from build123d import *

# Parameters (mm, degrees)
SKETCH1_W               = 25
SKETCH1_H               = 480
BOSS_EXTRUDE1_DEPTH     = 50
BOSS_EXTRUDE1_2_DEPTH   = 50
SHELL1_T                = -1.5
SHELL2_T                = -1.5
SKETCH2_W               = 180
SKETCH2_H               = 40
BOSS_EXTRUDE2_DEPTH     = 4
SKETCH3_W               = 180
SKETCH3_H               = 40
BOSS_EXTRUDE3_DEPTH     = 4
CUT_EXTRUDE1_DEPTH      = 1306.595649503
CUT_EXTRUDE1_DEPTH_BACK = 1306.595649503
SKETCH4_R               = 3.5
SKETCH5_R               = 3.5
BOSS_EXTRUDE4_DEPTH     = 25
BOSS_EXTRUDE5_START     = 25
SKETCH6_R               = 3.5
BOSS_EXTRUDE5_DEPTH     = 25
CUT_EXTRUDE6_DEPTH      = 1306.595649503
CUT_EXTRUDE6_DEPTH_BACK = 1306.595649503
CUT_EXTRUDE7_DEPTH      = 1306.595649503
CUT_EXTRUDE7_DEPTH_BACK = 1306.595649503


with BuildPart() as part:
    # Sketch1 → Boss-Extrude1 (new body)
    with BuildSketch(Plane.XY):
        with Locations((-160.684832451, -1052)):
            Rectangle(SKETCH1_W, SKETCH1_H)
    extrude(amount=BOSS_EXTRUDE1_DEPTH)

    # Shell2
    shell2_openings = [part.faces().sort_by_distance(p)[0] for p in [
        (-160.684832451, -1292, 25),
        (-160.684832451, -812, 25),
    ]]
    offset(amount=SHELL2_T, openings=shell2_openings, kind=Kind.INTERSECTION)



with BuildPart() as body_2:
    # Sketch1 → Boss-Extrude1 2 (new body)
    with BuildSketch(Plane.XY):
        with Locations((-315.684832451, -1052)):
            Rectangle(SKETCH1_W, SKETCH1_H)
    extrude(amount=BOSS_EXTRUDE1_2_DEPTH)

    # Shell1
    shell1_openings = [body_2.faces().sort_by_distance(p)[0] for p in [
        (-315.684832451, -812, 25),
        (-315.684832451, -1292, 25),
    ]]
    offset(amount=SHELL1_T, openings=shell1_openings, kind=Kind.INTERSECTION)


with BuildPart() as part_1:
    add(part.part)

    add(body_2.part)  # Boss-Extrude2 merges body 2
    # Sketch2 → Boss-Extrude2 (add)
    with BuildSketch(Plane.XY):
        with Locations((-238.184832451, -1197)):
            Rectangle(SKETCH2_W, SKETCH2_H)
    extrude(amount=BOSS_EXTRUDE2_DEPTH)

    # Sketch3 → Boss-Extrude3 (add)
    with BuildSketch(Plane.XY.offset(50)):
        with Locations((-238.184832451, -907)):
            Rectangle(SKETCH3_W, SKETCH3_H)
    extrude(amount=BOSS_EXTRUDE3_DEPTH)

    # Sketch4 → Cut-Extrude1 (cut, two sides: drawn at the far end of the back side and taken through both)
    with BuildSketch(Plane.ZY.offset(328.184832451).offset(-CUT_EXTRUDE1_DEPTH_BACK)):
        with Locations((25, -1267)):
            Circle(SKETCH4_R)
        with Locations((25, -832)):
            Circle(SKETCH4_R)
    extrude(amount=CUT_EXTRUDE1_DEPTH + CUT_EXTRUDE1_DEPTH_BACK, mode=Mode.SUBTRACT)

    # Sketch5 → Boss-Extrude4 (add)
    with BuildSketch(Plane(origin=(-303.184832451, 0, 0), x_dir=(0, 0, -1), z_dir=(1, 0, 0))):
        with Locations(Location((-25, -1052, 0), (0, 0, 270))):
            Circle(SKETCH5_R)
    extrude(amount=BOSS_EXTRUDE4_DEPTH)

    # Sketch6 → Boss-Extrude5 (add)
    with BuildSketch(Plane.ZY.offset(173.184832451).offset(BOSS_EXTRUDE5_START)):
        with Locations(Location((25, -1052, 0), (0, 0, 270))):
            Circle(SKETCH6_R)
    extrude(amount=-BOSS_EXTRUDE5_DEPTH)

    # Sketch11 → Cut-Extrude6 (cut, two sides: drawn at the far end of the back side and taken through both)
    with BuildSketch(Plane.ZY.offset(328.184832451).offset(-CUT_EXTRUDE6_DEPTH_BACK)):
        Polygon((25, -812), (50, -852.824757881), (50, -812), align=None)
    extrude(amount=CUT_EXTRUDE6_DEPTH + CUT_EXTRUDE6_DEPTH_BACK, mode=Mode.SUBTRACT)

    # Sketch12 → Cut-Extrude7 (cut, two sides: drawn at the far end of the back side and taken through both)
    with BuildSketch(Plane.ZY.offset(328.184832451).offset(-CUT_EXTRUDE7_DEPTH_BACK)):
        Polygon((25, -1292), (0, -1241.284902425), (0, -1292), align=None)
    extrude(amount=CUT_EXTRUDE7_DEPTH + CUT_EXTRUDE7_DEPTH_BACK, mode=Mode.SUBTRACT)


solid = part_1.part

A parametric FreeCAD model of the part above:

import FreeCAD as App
import Part
import Sketcher


def faces_at(feature, points):
    """Names of the faces that lie closest to the given points."""
    faces = feature.Shape.Faces
    near = lambda p: min(range(len(faces)), key=lambda i: faces[i].distToShape(Part.Vertex(*p))[0])
    return sorted({f"Face{near(p) + 1}" for p in points})

doc = App.newDocument("Part")
body = doc.addObject("PartDesign::Body", "Body")

# Sketch on XY plane
sketch1 = body.newObject("Sketcher::SketchObject", "Sketch")
sketch1.AttachmentSupport = (doc.getObject("XY_Plane"), [""])
sketch1.MapMode = "FlatFace"
sketch1.addGeometry([
    Part.LineSegment(App.Vector(-173.184832, -812, 0), App.Vector(-173.184832, -1292, 0)),
    Part.LineSegment(App.Vector(-173.184832, -1292, 0), App.Vector(-148.184832, -1292, 0)),
    Part.LineSegment(App.Vector(-148.184832, -1292, 0), App.Vector(-148.184832, -812, 0)),
    Part.LineSegment(App.Vector(-148.184832, -812, 0), App.Vector(-173.184832, -812, 0)),
], False)
sketch1.addConstraint([
    Sketcher.Constraint("Coincident", 0, 2, 1, 1),
    Sketcher.Constraint("Coincident", 1, 2, 2, 1),
    Sketcher.Constraint("Coincident", 2, 2, 3, 1),
    Sketcher.Constraint("Coincident", 3, 2, 0, 1),
    Sketcher.Constraint("Vertical", 0),
    Sketcher.Constraint("Horizontal", 1),
    Sketcher.Constraint("Vertical", 2),
    Sketcher.Constraint("Horizontal", 3),
    Sketcher.Constraint("DistanceX", 1, 1, 1, 2, 25.0),
    Sketcher.Constraint("DistanceY", 0, 2, 0, 1, 480.0),
    Sketcher.Constraint("DistanceY", 0, 2, -1, 1, 1292.0),
    Sketcher.Constraint("DistanceX", 0, 2, -1, 1, 173.184832),
])
pad1 = body.newObject("PartDesign::Pad", "Pad")
pad1.Profile = sketch1
pad1.Length = 50
doc.recompute()

thickness = body.newObject("PartDesign::Thickness", "Thickness")
thickness.Base = (pad1, faces_at(pad1, [(-160.685, -1292, 25), (-160.685, -812, 25)]))
thickness.Value = 1.5
thickness.Reversed = True
thickness.Join = "Intersection"
body2 = doc.addObject("PartDesign::Body", "Body001")

# Sketch on XY plane
sketch2 = body2.newObject("Sketcher::SketchObject", "Sketch001")
sketch2.AttachmentSupport = (doc.getObject("XY_Plane001"), [""])
sketch2.MapMode = "FlatFace"
sketch2.addGeometry([
    Part.LineSegment(App.Vector(-328.184832, -812, 0), App.Vector(-328.184832, -1292, 0)),
    Part.LineSegment(App.Vector(-328.184832, -1292, 0), App.Vector(-303.184832, -1292, 0)),
    Part.LineSegment(App.Vector(-303.184832, -1292, 0), App.Vector(-303.184832, -812, 0)),
    Part.LineSegment(App.Vector(-303.184832, -812, 0), App.Vector(-328.184832, -812, 0)),
], False)
sketch2.addConstraint([
    Sketcher.Constraint("Coincident", 0, 2, 1, 1),
    Sketcher.Constraint("Coincident", 1, 2, 2, 1),
    Sketcher.Constraint("Coincident", 2, 2, 3, 1),
    Sketcher.Constraint("Coincident", 3, 2, 0, 1),
    Sketcher.Constraint("Vertical", 0),
    Sketcher.Constraint("Horizontal", 1),
    Sketcher.Constraint("Vertical", 2),
    Sketcher.Constraint("Horizontal", 3),
    Sketcher.Constraint("DistanceX", 1, 1, 1, 2, 25.0),
    Sketcher.Constraint("DistanceY", 0, 2, 0, 1, 480.0),
    Sketcher.Constraint("DistanceY", 0, 2, -1, 1, 1292.0),
    Sketcher.Constraint("DistanceX", 0, 2, -1, 1, 328.184832),
])
pad2 = body2.newObject("PartDesign::Pad", "Pad001")
pad2.Profile = sketch2
pad2.Length = 50
doc.recompute()

thickness2 = body2.newObject("PartDesign::Thickness", "Thickness001")
thickness2.Base = (pad2, faces_at(pad2, [(-315.685, -812, 25), (-315.685, -1292, 25)]))
thickness2.Value = 1.5
thickness2.Reversed = True
thickness2.Join = "Intersection"
body.AllowCompound = True
doc.recompute()

boolean = body.newObject("PartDesign::Boolean", "Boolean")
boolean.Type = "Fuse"
boolean.addObjects([body2])

# Sketch on XY plane
sketch3 = body.newObject("Sketcher::SketchObject", "Sketch002")
sketch3.AttachmentSupport = (doc.getObject("XY_Plane"), [""])
sketch3.MapMode = "FlatFace"
sketch3.addGeometry([
    Part.LineSegment(App.Vector(-328.184832, -1177, 0), App.Vector(-328.184832, -1217, 0)),
    Part.LineSegment(App.Vector(-328.184832, -1217, 0), App.Vector(-148.184832, -1217, 0)),
    Part.LineSegment(App.Vector(-148.184832, -1217, 0), App.Vector(-148.184832, -1177, 0)),
    Part.LineSegment(App.Vector(-148.184832, -1177, 0), App.Vector(-328.184832, -1177, 0)),
], False)
sketch3.addConstraint([
    Sketcher.Constraint("Coincident", 0, 2, 1, 1),
    Sketcher.Constraint("Coincident", 1, 2, 2, 1),
    Sketcher.Constraint("Coincident", 2, 2, 3, 1),
    Sketcher.Constraint("Coincident", 3, 2, 0, 1),
    Sketcher.Constraint("Vertical", 0),
    Sketcher.Constraint("Horizontal", 1),
    Sketcher.Constraint("Vertical", 2),
    Sketcher.Constraint("Horizontal", 3),
    Sketcher.Constraint("DistanceX", 1, 1, 1, 2, 180.0),
    Sketcher.Constraint("DistanceY", 0, 2, 0, 1, 40.0),
    Sketcher.Constraint("DistanceY", 0, 2, -1, 1, 1217.0),
    Sketcher.Constraint("DistanceX", 0, 2, -1, 1, 328.184832),
])
pad3 = body.newObject("PartDesign::Pad", "Pad002")
pad3.Profile = sketch3
pad3.Length = 4

# Sketch on XY plane
sketch4 = body.newObject("Sketcher::SketchObject", "Sketch003")
sketch4.AttachmentSupport = (doc.getObject("XY_Plane"), [""])
sketch4.MapMode = "FlatFace"
sketch4.AttachmentOffset = App.Placement(App.Vector(0, 0, 50), App.Rotation())
sketch4.addGeometry([
    Part.LineSegment(App.Vector(-328.184832, -887, 0), App.Vector(-328.184832, -927, 0)),
    Part.LineSegment(App.Vector(-328.184832, -927, 0), App.Vector(-148.184832, -927, 0)),
    Part.LineSegment(App.Vector(-148.184832, -927, 0), App.Vector(-148.184832, -887, 0)),
    Part.LineSegment(App.Vector(-148.184832, -887, 0), App.Vector(-328.184832, -887, 0)),
], False)
sketch4.addConstraint([
    Sketcher.Constraint("Coincident", 0, 2, 1, 1),
    Sketcher.Constraint("Coincident", 1, 2, 2, 1),
    Sketcher.Constraint("Coincident", 2, 2, 3, 1),
    Sketcher.Constraint("Coincident", 3, 2, 0, 1),
    Sketcher.Constraint("Vertical", 0),
    Sketcher.Constraint("Horizontal", 1),
    Sketcher.Constraint("Vertical", 2),
    Sketcher.Constraint("Horizontal", 3),
    Sketcher.Constraint("DistanceX", 1, 1, 1, 2, 180.0),
    Sketcher.Constraint("DistanceY", 0, 2, 0, 1, 40.0),
    Sketcher.Constraint("DistanceY", 0, 2, -1, 1, 927.0),
    Sketcher.Constraint("DistanceX", 0, 2, -1, 1, 328.184832),
])
pad4 = body.newObject("PartDesign::Pad", "Pad003")
pad4.Profile = sketch4
pad4.Length = 4

# Sketch on YZ plane
sketch5 = body.newObject("Sketcher::SketchObject", "Sketch004")
sketch5.AttachmentSupport = (doc.getObject("YZ_Plane"), [""])
sketch5.MapMode = "FlatFace"
sketch5.AttachmentOffset = App.Placement(App.Vector(0, 0, -328.184832), App.Rotation())
sketch5.addGeometry([
    Part.Circle(App.Vector(-1267, 25, 0), App.Vector(0, 0, 1), 3.5),
    Part.Circle(App.Vector(-832, 25, 0), App.Vector(0, 0, 1), 3.5),
], False)
sketch5.addConstraint([
    Sketcher.Constraint("Equal", 0, 1),
    Sketcher.Constraint("Horizontal", 0, 3, 1, 3),
    Sketcher.Constraint("Diameter", 0, 7.0),
    Sketcher.Constraint("DistanceX", 0, 3, -1, 1, 1267.0),
    Sketcher.Constraint("DistanceY", -1, 1, 0, 3, 25.0),
    Sketcher.Constraint("DistanceX", 1, 3, -1, 1, 832.0),
])
pocket1 = body.newObject("PartDesign::Pocket", "Pocket")
pocket1.Profile = sketch5
pocket1.Type = "ThroughAll"
pocket1.Midplane = True

# Sketch on YZ plane
sketch6 = body.newObject("Sketcher::SketchObject", "Sketch005")
sketch6.AttachmentSupport = (doc.getObject("YZ_Plane"), [""])
sketch6.MapMode = "FlatFace"
sketch6.AttachmentOffset = App.Placement(App.Vector(0, 0, -303.184832), App.Rotation())
sketch6.addGeometry(Part.Circle(App.Vector(-1052, 25, 0), App.Vector(0, 0, 1), 3.5), False)
sketch6.addConstraint([
    Sketcher.Constraint("Diameter", 0, 7.0),
    Sketcher.Constraint("DistanceX", 0, 3, -1, 1, 1052.0),
    Sketcher.Constraint("DistanceY", -1, 1, 0, 3, 25.0),
])
pad5 = body.newObject("PartDesign::Pad", "Pad004")
pad5.Profile = sketch6
pad5.Length = 25

# Sketch on YZ plane
sketch7 = body.newObject("Sketcher::SketchObject", "Sketch006")
sketch7.AttachmentSupport = (doc.getObject("YZ_Plane"), [""])
sketch7.MapMode = "FlatFace"
sketch7.AttachmentOffset = App.Placement(App.Vector(0, 0, -198.184832), App.Rotation())
sketch7.addGeometry(Part.Circle(App.Vector(-1052, 25, 0), App.Vector(0, 0, 1), 3.5), False)
sketch7.addConstraint([
    Sketcher.Constraint("Diameter", 0, 7.0),
    Sketcher.Constraint("DistanceX", 0, 3, -1, 1, 1052.0),
    Sketcher.Constraint("DistanceY", -1, 1, 0, 3, 25.0),
])
pad6 = body.newObject("PartDesign::Pad", "Pad005")
pad6.Profile = sketch7
pad6.Length = 25

# Sketch on YZ plane
sketch8 = body.newObject("Sketcher::SketchObject", "Sketch007")
sketch8.AttachmentSupport = (doc.getObject("YZ_Plane"), [""])
sketch8.MapMode = "FlatFace"
sketch8.AttachmentOffset = App.Placement(App.Vector(0, 0, -328.184832), App.Rotation())
sketch8.addGeometry([
    Part.LineSegment(App.Vector(-812, 25, 0), App.Vector(-852.824758, 50, 0)),
    Part.LineSegment(App.Vector(-852.824758, 50, 0), App.Vector(-812, 50, 0)),
    Part.LineSegment(App.Vector(-812, 50, 0), App.Vector(-812, 25, 0)),
], False)
sketch8.addConstraint([
    Sketcher.Constraint("Coincident", 0, 2, 1, 1),
    Sketcher.Constraint("Coincident", 1, 2, 2, 1),
    Sketcher.Constraint("Coincident", 2, 2, 0, 1),
    Sketcher.Constraint("Horizontal", 1),
    Sketcher.Constraint("Vertical", 2),
    Sketcher.Constraint("DistanceY", 2, 2, 2, 1, 25.0),
    Sketcher.Constraint("DistanceY", -1, 1, 0, 2, 50.0),
    Sketcher.Constraint("DistanceX", 1, 2, -1, 1, 812.0),
    Sketcher.Constraint("DistanceX", 1, 1, 1, 2, 40.824758),
])
pocket2 = body.newObject("PartDesign::Pocket", "Pocket001")
pocket2.Profile = sketch8
pocket2.Type = "ThroughAll"
pocket2.Midplane = True

# Sketch on YZ plane
sketch9 = body.newObject("Sketcher::SketchObject", "Sketch008")
sketch9.AttachmentSupport = (doc.getObject("YZ_Plane"), [""])
sketch9.MapMode = "FlatFace"
sketch9.AttachmentOffset = App.Placement(App.Vector(0, 0, -328.184832), App.Rotation())
sketch9.addGeometry([
    Part.LineSegment(App.Vector(-1292, 25, 0), App.Vector(-1241.284902, 0, 0)),
    Part.LineSegment(App.Vector(-1241.284902, 0, 0), App.Vector(-1292, 0, 0)),
    Part.LineSegment(App.Vector(-1292, 0, 0), App.Vector(-1292, 25, 0)),
], False)
sketch9.addConstraint([
    Sketcher.Constraint("Coincident", 0, 2, 1, 1),
    Sketcher.Constraint("Coincident", 1, 2, 2, 1),
    Sketcher.Constraint("Coincident", 2, 2, 0, 1),
    Sketcher.Constraint("Horizontal", 1),
    Sketcher.Constraint("Vertical", 2),
    Sketcher.Constraint("PointOnObject", 0, 2, -1),
    Sketcher.Constraint("DistanceY", 2, 1, 2, 2, 25.0),
    Sketcher.Constraint("DistanceX", 1, 2, -1, 1, 1292.0),
    Sketcher.Constraint("DistanceX", 1, 2, 1, 1, 50.715098),
])
pocket3 = body.newObject("PartDesign::Pocket", "Pocket002")
pocket3.Profile = sketch9
pocket3.Type = "ThroughAll"
pocket3.Midplane = True

doc.recompute()
